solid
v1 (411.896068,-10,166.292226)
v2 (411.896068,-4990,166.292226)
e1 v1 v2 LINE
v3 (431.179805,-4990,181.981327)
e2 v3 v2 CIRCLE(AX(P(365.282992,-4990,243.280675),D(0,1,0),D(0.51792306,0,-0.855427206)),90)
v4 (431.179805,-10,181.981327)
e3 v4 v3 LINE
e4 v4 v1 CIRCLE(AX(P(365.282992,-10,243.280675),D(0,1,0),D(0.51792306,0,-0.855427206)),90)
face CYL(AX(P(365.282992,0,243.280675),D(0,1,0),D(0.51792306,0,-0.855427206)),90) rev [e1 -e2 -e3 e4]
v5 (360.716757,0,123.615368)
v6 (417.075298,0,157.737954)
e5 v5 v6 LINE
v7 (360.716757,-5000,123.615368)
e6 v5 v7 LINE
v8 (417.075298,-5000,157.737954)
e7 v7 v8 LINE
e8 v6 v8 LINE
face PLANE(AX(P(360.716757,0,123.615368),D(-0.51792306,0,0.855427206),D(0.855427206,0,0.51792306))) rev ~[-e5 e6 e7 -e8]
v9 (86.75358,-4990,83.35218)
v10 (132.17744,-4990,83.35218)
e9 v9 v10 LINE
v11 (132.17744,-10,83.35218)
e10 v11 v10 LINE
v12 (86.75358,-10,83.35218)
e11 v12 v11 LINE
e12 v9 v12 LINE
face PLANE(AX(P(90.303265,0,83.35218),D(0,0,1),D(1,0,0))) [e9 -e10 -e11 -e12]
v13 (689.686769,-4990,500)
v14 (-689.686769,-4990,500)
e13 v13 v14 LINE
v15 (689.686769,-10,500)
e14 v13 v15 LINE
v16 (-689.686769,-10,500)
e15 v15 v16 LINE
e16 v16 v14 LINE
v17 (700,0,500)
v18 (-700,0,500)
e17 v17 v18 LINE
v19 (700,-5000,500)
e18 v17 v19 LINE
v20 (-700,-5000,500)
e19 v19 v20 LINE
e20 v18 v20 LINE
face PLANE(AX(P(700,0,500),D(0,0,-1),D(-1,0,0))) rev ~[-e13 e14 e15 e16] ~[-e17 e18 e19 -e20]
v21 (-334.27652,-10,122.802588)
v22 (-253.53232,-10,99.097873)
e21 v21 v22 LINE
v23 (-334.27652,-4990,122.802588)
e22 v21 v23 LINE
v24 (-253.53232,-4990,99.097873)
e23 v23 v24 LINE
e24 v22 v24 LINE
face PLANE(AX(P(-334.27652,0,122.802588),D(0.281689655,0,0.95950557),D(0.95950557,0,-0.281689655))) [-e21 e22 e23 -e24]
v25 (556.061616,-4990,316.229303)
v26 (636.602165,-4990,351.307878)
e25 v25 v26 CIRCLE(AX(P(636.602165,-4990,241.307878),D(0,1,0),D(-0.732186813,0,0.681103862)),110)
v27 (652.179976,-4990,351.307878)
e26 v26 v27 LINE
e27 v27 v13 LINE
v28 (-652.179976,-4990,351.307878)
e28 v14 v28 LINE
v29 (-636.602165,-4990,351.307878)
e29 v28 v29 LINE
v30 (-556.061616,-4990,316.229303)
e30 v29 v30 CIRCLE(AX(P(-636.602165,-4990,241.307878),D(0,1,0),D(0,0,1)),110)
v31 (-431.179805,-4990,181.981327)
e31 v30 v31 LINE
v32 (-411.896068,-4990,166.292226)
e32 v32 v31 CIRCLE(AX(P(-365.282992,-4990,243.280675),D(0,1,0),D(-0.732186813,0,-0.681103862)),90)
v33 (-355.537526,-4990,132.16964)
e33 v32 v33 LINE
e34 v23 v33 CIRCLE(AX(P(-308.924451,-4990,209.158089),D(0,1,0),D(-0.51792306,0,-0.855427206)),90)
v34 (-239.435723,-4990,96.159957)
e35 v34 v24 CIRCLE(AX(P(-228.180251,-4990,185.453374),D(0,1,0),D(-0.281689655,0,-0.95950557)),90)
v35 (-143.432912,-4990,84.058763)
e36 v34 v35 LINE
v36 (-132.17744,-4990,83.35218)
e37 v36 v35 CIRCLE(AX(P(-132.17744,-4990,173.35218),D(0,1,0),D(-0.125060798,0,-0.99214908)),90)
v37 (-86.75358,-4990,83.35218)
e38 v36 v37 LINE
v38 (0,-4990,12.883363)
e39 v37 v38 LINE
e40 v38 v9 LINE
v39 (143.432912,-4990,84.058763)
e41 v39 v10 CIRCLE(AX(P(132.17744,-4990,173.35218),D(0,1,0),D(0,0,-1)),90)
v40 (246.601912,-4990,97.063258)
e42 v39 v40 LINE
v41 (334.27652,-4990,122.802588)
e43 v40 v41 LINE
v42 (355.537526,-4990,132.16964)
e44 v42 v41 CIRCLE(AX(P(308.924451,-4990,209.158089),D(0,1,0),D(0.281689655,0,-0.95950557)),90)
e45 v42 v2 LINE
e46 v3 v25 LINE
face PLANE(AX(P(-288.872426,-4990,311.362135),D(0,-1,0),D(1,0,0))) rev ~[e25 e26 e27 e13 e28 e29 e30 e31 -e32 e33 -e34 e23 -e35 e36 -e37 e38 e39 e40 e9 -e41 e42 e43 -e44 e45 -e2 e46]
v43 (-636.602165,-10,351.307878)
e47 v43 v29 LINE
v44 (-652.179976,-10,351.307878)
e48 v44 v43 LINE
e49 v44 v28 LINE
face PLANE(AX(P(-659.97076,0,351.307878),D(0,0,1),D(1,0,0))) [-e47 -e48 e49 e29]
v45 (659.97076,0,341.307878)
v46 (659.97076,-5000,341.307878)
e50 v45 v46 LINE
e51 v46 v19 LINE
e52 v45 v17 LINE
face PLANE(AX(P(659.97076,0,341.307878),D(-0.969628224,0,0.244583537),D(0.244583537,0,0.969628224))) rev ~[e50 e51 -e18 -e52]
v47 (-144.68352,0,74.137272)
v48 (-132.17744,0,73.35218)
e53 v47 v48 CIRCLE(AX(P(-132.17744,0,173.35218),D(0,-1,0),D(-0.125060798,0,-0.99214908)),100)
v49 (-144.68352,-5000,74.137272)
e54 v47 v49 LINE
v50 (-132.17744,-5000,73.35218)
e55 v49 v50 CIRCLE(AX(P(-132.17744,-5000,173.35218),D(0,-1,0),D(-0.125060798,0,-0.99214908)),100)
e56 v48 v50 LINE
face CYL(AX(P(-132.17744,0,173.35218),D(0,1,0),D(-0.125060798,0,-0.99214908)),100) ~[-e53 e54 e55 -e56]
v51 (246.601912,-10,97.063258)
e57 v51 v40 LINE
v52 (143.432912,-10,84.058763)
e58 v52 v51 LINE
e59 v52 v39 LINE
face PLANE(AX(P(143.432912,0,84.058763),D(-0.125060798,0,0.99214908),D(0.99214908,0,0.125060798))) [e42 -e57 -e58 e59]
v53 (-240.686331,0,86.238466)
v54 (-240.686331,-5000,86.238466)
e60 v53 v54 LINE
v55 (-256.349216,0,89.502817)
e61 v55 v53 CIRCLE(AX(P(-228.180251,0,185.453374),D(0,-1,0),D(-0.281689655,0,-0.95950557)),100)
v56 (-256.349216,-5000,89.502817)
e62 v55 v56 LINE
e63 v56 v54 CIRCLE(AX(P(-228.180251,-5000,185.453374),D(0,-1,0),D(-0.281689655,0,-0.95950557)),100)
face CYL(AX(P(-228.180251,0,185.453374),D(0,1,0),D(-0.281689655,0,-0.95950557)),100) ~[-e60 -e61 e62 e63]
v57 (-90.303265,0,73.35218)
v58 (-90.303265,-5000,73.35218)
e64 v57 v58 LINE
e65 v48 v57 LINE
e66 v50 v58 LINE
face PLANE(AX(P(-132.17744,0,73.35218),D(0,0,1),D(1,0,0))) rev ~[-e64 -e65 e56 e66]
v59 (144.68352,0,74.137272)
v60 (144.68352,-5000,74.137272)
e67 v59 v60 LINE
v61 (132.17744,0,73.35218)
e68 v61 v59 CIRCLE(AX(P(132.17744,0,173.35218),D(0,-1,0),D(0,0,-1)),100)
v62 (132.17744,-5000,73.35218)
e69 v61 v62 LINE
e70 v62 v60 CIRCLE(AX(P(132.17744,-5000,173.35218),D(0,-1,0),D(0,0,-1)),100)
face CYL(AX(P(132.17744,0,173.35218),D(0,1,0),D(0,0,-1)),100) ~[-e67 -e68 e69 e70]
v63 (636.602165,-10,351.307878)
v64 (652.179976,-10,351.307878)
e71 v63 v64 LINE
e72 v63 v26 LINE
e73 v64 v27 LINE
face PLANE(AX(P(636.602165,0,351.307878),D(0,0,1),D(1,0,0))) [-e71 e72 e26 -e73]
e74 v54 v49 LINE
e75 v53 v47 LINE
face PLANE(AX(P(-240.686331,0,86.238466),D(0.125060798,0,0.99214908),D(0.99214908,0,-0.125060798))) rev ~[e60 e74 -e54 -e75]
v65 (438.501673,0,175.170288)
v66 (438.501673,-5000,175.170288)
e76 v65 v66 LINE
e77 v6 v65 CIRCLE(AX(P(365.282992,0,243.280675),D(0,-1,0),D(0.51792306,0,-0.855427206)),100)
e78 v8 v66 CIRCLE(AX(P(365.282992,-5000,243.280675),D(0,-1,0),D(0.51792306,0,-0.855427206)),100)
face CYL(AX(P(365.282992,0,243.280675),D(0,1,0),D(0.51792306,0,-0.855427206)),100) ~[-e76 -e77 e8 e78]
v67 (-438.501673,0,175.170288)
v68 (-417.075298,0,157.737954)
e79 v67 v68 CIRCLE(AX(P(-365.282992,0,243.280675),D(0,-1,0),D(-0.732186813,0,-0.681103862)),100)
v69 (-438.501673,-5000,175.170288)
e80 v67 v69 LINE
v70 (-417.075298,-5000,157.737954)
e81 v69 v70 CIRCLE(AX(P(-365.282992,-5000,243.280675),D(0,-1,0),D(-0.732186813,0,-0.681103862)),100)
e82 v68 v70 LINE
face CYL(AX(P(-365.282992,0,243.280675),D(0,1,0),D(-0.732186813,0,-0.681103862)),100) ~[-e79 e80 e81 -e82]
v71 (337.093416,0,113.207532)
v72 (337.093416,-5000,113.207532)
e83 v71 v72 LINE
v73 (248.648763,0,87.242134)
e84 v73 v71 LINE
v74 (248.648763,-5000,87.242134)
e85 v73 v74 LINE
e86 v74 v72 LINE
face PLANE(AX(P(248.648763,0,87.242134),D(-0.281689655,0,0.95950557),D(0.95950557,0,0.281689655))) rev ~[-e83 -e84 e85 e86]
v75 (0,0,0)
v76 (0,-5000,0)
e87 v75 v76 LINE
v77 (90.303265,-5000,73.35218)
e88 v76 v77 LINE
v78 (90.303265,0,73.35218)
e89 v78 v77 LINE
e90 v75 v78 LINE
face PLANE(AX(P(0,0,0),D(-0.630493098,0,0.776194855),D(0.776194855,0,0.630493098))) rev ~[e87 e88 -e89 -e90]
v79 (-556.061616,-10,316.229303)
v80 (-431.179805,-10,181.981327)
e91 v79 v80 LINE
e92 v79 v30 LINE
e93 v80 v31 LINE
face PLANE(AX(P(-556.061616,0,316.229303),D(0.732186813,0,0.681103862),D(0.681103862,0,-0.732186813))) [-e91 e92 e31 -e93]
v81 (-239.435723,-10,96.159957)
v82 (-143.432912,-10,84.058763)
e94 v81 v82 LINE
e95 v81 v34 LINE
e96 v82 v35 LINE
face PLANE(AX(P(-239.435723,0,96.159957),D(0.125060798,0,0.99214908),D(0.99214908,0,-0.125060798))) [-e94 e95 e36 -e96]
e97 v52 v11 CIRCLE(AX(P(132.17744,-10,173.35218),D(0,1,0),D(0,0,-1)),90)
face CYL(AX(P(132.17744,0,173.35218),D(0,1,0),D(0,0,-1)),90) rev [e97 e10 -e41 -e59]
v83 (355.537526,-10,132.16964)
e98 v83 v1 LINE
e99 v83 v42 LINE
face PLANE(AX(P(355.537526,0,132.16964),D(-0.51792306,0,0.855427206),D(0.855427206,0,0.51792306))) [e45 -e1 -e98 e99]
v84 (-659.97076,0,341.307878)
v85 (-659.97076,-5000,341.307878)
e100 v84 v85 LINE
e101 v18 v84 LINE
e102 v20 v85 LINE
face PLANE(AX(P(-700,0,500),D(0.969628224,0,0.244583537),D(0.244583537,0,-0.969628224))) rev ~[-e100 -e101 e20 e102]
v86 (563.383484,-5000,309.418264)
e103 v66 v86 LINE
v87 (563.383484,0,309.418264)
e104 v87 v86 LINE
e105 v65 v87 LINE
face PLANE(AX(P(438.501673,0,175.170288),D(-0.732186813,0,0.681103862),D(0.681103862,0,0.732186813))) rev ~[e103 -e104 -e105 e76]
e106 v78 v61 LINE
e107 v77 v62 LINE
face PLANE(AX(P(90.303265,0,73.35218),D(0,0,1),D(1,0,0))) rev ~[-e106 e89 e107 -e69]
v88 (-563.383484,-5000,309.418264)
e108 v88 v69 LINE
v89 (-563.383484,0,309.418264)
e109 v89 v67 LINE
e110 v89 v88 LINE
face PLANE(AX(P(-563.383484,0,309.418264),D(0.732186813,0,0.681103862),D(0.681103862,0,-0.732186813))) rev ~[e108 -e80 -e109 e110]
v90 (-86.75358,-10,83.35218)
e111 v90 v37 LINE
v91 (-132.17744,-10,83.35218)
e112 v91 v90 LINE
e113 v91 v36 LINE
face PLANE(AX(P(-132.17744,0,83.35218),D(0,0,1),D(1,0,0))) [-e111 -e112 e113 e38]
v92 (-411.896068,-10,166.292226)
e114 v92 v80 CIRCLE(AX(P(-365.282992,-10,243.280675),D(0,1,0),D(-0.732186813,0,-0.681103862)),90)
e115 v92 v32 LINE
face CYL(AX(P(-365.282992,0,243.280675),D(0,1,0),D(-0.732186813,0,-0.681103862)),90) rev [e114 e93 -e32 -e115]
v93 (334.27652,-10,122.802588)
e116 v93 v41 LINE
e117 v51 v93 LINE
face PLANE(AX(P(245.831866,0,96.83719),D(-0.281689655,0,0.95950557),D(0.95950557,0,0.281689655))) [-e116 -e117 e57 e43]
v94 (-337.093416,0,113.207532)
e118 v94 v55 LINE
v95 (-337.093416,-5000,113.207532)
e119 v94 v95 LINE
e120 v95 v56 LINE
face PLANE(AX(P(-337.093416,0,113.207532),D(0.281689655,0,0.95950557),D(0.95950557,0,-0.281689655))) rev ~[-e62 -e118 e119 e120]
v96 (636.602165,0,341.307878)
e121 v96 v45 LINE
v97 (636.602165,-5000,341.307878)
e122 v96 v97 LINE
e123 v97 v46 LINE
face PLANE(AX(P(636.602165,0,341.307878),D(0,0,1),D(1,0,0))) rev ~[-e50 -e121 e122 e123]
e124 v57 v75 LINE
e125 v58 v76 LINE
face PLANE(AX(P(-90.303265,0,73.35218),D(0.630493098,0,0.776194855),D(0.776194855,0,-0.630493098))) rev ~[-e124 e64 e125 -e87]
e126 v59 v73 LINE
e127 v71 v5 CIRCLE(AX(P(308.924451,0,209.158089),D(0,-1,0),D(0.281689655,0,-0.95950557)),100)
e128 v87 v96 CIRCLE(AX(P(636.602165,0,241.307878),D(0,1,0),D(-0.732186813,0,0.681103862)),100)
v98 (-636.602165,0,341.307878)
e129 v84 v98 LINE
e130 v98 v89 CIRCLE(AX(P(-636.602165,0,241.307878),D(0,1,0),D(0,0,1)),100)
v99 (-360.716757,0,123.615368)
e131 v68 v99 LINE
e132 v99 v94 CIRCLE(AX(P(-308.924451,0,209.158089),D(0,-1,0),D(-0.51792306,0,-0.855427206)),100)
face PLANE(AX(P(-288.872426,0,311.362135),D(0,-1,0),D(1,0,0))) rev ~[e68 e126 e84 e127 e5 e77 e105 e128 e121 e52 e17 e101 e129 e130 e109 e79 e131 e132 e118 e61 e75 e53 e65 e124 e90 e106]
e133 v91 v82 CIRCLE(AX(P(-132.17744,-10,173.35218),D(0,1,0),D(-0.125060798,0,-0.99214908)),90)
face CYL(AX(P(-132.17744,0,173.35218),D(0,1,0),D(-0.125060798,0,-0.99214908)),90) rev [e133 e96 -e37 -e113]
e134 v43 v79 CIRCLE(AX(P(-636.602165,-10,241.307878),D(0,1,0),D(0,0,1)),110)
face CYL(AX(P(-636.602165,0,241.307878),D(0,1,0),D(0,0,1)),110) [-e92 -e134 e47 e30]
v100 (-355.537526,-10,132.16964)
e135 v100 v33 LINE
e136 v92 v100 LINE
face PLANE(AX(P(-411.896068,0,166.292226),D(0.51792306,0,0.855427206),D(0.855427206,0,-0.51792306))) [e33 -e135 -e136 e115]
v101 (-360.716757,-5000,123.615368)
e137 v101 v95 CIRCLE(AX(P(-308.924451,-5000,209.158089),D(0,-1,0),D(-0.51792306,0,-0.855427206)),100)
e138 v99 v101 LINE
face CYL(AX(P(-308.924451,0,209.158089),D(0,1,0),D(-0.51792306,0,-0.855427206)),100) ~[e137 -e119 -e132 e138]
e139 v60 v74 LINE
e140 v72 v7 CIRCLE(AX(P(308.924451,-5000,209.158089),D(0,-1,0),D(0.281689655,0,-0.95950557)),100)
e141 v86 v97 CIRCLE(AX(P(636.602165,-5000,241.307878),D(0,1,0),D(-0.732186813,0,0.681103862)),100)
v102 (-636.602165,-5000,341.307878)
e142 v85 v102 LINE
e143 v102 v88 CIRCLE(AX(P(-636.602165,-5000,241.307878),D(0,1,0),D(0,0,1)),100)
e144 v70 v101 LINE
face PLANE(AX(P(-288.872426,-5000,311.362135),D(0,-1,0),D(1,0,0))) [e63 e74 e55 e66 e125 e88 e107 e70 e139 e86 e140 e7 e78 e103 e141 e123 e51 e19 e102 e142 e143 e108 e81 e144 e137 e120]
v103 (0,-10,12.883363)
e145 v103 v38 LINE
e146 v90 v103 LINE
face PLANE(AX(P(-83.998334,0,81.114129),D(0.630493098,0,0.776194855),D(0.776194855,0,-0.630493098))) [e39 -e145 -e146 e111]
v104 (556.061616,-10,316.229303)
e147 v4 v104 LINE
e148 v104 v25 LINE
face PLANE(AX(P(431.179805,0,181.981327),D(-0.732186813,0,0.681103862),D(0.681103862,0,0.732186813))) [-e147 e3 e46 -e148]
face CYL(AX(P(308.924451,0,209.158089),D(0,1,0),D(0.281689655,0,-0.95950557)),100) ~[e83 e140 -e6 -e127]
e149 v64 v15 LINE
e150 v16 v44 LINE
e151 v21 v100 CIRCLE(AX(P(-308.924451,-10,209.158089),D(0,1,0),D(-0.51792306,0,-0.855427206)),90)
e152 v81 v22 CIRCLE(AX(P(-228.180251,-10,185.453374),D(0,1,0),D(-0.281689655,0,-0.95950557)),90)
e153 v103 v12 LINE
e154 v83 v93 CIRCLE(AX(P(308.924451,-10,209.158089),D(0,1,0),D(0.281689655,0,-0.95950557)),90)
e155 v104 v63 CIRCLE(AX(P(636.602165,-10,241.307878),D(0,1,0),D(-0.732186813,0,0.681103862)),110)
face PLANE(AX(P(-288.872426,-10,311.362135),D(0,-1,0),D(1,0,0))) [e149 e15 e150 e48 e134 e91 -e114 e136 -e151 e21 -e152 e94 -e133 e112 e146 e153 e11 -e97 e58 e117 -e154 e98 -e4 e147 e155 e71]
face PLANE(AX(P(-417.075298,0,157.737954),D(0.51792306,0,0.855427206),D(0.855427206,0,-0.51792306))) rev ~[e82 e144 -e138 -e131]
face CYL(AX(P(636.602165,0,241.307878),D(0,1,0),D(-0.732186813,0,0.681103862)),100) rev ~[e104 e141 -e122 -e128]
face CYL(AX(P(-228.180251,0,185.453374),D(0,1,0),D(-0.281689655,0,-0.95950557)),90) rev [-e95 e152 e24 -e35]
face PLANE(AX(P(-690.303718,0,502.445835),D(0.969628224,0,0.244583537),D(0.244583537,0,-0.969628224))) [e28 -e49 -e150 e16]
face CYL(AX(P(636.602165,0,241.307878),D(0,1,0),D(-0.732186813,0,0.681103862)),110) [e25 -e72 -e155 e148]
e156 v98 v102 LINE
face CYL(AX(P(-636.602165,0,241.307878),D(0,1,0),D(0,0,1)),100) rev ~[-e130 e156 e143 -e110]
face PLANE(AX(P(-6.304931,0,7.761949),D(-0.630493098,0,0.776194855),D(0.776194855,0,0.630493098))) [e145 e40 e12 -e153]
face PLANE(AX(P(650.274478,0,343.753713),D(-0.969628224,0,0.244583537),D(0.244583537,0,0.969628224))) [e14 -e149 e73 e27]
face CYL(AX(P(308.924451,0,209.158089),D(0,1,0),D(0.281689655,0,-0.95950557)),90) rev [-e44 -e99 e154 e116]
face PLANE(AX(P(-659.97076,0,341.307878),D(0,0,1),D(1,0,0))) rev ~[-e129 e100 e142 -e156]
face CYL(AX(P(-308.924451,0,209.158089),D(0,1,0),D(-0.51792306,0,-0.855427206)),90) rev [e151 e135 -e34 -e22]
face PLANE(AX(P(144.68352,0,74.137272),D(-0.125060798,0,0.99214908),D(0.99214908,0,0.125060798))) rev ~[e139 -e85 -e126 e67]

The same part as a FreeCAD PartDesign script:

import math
import FreeCAD as App
import Part
import Sketcher

V = App.Vector


def faces_at(feature, points):
    """Names of the faces that lie closest to the given points."""
    faces = feature.Shape.Faces
    near = lambda p: min(range(len(faces)), key=lambda i: faces[i].distToShape(Part.Vertex(*p))[0])
    return sorted({f"Face{near(p) + 1}" for p in points})

doc = App.newDocument("Part")
body = doc.addObject("PartDesign::Body", "Body")

# Sketch on XZ plane
sketch1 = doc.addObject("Sketcher::SketchObject", "Sketch")
body.addObject(sketch1)
sketch1.AttachmentSupport = (doc.XZ_Plane, [""])
sketch1.MapMode = "FlatFace"
sketch1.addGeometry([
    Part.LineSegment(V(-90, 73, 0), V(0, 0, 0)),  # 0
    Part.LineSegment(V(0, 0, 0), V(90, 73, 0)),  # 1
    Part.LineSegment(V(90, 73, 0), V(132, 73, 0)),  # 2
    Part.ArcOfCircle(Part.Circle(V(132, 173, 0), V(0, 0, 1), 100), math.radians(-90), math.radians(-82.82)),  # 3
    Part.LineSegment(V(145, 74, 0), V(249, 87, 0)),  # 4
    Part.LineSegment(V(249, 87, 0), V(337, 113, 0)),  # 5
    Part.ArcOfCircle(Part.Circle(V(309, 209, 0), V(0, 0, 1), 100), math.radians(-73.64), math.radians(-58.81)),  # 6
    Part.LineSegment(V(361, 124, 0), V(417, 158, 0)),  # 7
    Part.ArcOfCircle(Part.Circle(V(365, 243, 0), V(0, 0, 1), 100), math.radians(-58.81), math.radians(-42.93)),  # 8
    Part.LineSegment(V(439, 175, 0), V(563, 309, 0)),  # 9
    Part.ArcOfCircle(Part.Circle(V(637, 241, 0), V(0, 0, 1), 100), math.radians(90), math.radians(137)),  # 10
    Part.LineSegment(V(637, 341, 0), V(660, 341, 0)),  # 11
    Part.LineSegment(V(660, 341, 0), V(700, 500, 0)),  # 12
    Part.LineSegment(V(700, 500, 0), V(-700, 500, 0)),  # 13
    Part.LineSegment(V(-700, 500, 0), V(-660, 341, 0)),  # 14
    Part.LineSegment(V(-660, 341, 0), V(-637, 341, 0)),  # 15
    Part.ArcOfCircle(Part.Circle(V(-637, 241, 0), V(0, 0, 1), 100), math.radians(43), math.radians(90)),  # 16
    Part.LineSegment(V(-563, 309, 0), V(-439, 175, 0)),  # 17
    Part.ArcOfCircle(Part.Circle(V(-365, 243, 0), V(0, 0, 1), 100), math.radians(-137.07), math.radians(-121.19)),  # 18
    Part.LineSegment(V(-417, 158, 0), V(-361, 124, 0)),  # 19
    Part.ArcOfCircle(Part.Circle(V(-309, 209, 0), V(0, 0, 1), 100), math.radians(-121.19), math.radians(-106.36)),  # 20
    Part.LineSegment(V(-337, 113, 0), V(-256, 90, 0)),  # 21
    Part.ArcOfCircle(Part.Circle(V(-228, 185, 0), V(0, 0, 1), 100), math.radians(-106.36), math.radians(-97.18)),  # 22
    Part.LineSegment(V(-241, 86, 0), V(-145, 74, 0)),  # 23
    Part.ArcOfCircle(Part.Circle(V(-132, 173, 0), V(0, 0, 1), 100), math.radians(-97.18), math.radians(-90)),  # 24
    Part.LineSegment(V(-132, 73, 0), V(-90, 73, 0)),  # 25
], False)
sketch1.addConstraint([
    Sketcher.Constraint("Coincident", 0, 2, 1, 1),
    Sketcher.Constraint("Coincident", 1, 2, 2, 1),
    Sketcher.Constraint("Tangent", 2, 2, 3, 1),
    Sketcher.Constraint("Tangent", 3, 2, 4, 1),
    Sketcher.Constraint("Coincident", 4, 2, 5, 1),
    Sketcher.Constraint("Tangent", 5, 2, 6, 1),
    Sketcher.Constraint("Tangent", 6, 2, 7, 1),
    Sketcher.Constraint("Tangent", 7, 2, 8, 1),
    Sketcher.Constraint("Tangent", 8, 2, 9, 1),
    Sketcher.Constraint("Tangent", 9, 2, 10, 2),
    Sketcher.Constraint("Tangent", 10, 1, 11, 1),
    Sketcher.Constraint("Coincident", 11, 2, 12, 1),
    Sketcher.Constraint("Coincident", 12, 2, 13, 1),
    Sketcher.Constraint("Coincident", 13, 2, 14, 1),
    Sketcher.Constraint("Coincident", 14, 2, 15, 1),
    Sketcher.Constraint("Tangent", 15, 2, 16, 2),
    Sketcher.Constraint("Tangent", 16, 1, 17, 1),
    Sketcher.Constraint("Tangent", 17, 2, 18, 1),
    Sketcher.Constraint("Tangent", 18, 2, 19, 1),
    Sketcher.Constraint("Tangent", 19, 2, 20, 1),
    Sketcher.Constraint("Tangent", 20, 2, 21, 1),
    Sketcher.Constraint("Tangent", 21, 2, 22, 1),
    Sketcher.Constraint("Tangent", 22, 2, 23, 1),
    Sketcher.Constraint("Tangent", 23, 2, 24, 1),
    Sketcher.Constraint("Tangent", 24, 2, 25, 1),
    Sketcher.Constraint("Coincident", 25, 2, 0, 1),
    Sketcher.Constraint("Horizontal", 2),
    Sketcher.Constraint("Horizontal", 11),
    Sketcher.Constraint("Horizontal", 13),
    Sketcher.Constraint("Horizontal", 15),
    Sketcher.Constraint("Horizontal", 25),
    Sketcher.Constraint("Coincident", 0, 2, -1, 1),
    Sketcher.Constraint("Equal", 3, 6),
    Sketcher.Constraint("Equal", 6, 8),
    Sketcher.Constraint("Equal", 8, 10),
    Sketcher.Constraint("Equal", 10, 16),
    Sketcher.Constraint("Equal", 16, 18),
    Sketcher.Constraint("Equal", 18, 20),
    Sketcher.Constraint("Equal", 20, 22),
    Sketcher.Constraint("Equal", 22, 24),
    Sketcher.Constraint("Symmetric", 10, 3, 16, 3, -2),
    Sketcher.Constraint("Symmetric", 8, 3, 18, 3, -2),
    Sketcher.Constraint("Symmetric", 6, 3, 20, 3, -2),
    Sketcher.Constraint("Symmetric", 3, 3, 24, 3, -2),
    Sketcher.Constraint("Horizontal", 5, 2, 20, 2),
    Sketcher.Constraint("Equal", 11, 15),
    Sketcher.Constraint("Equal", 2, 25),
    Sketcher.Constraint("Equal", 12, 14),
    Sketcher.Constraint("Radius", 3, 100.0),
    Sketcher.Constraint("DistanceX", 13, 2, 13, 1, 1400.0),
    Sketcher.Constraint("DistanceY", -1, 1, 12, 2, 500.0),
    Sketcher.Constraint("DistanceX", -1, 1, 7, 2, 417.075298),
    Sketcher.Constraint("DistanceX", 20, 3, 6, 3, 617.848902),
    Sketcher.Constraint("DistanceX", 20, 3, 22, 3, 80.7442),
    Sketcher.Constraint("DistanceY", 22, 3, 18, 3, 57.827301),
    Sketcher.Constraint("DistanceX", 1, 2, 4, 2, 158.345498),
    Sketcher.Constraint("DistanceY", 4, 2, 5, 2, 25.965398),
    Sketcher.Constraint("DistanceY", 8, 2, 6, 3, 33.987801),
    Sketcher.Constraint("DistanceY", 23, 2, 22, 3, 111.316102),
    Sketcher.Constraint("Distance", 5, 92.177322),
    Sketcher.Constraint("Distance", 9, 183.352081),
    Sketcher.Constraint("DistanceX", 2, 1, 2, 2, 41.874175),
    Sketcher.Constraint("DistanceX", 11, 1, 11, 2, 23.368595),
    Sketcher.Constraint("DistanceY", -1, 1, 3, 3, 173.35218),
])
pad1 = doc.addObject("PartDesign::Pad", "Pad")
body.addObject(pad1)
pad1.Profile = sketch1
pad1.Length = 5000
doc.recompute()

thickness = doc.addObject("PartDesign::Thickness", "Thickness")
body.addObject(thickness)
thickness.Base = (pad1, faces_at(pad1, [(0, -2500, 500)]))
thickness.Value = 10
thickness.Reversed = True
thickness.Join = "Intersection"

doc.recompute()
